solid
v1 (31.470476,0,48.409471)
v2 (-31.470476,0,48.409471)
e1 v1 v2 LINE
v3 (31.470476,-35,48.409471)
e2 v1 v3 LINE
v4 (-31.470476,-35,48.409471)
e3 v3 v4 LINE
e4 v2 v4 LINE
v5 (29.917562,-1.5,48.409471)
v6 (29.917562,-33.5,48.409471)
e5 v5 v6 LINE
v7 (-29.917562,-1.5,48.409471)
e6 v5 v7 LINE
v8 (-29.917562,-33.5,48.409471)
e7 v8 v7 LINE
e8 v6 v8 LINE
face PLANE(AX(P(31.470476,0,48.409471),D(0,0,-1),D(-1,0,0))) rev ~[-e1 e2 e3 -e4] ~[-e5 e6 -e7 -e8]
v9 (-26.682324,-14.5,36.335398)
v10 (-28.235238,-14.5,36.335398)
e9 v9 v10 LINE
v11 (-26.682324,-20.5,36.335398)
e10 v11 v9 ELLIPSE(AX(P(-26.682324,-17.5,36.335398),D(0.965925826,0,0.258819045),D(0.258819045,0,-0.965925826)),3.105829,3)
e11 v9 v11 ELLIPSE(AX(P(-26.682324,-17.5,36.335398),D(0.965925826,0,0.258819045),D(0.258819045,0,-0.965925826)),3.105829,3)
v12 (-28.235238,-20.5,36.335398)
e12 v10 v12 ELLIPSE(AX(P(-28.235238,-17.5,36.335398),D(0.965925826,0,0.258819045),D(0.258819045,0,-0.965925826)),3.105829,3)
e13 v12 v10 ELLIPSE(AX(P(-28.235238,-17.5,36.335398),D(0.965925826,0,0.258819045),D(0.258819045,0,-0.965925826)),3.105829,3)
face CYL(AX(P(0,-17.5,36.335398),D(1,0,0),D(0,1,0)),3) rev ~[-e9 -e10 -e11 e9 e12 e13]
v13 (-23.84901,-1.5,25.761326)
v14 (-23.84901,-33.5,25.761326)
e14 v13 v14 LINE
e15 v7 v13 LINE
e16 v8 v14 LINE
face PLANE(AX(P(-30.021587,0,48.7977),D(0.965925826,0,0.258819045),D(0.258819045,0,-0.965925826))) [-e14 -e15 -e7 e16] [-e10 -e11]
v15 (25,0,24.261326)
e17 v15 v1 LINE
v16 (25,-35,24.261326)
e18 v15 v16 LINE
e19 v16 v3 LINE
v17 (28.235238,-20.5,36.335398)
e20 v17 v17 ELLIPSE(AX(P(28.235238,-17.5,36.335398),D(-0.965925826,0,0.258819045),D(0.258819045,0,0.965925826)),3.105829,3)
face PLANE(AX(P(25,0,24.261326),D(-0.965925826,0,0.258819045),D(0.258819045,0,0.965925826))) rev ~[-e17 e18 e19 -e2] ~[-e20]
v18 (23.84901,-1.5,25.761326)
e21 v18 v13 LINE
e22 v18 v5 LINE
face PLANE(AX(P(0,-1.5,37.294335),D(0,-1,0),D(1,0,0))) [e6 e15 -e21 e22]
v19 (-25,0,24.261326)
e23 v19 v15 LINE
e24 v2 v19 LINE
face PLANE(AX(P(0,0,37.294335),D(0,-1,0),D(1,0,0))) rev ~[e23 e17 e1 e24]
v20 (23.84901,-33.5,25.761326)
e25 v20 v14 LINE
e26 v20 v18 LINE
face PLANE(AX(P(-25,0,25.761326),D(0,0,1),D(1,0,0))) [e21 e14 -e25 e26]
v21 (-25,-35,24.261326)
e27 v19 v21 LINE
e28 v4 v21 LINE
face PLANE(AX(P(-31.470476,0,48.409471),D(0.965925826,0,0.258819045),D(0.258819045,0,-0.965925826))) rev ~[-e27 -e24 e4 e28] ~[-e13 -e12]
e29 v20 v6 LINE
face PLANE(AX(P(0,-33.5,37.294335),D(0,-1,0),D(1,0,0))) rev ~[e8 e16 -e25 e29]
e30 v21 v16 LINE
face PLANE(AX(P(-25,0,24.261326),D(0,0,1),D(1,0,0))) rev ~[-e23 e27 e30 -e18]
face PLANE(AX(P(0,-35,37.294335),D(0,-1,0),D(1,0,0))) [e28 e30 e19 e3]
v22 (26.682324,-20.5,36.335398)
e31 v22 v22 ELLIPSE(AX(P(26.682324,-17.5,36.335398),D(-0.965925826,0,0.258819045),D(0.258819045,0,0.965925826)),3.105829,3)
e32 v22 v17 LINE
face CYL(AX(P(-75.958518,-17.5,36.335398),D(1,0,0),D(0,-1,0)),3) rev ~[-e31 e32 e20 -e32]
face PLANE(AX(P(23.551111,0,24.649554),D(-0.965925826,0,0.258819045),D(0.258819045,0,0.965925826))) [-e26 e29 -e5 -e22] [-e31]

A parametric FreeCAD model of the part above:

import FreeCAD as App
import Part
import Sketcher
Q = App.Units.Quantity


def faces_at(feature, points):
    """Names of the faces that lie closest to the given points."""
    faces = feature.Shape.Faces
    near = lambda p: min(range(len(faces)), key=lambda i: faces[i].distToShape(Part.Vertex(*p))[0])
    return sorted({f"Face{near(p) + 1}" for p in points})


def add_polygon(sketch, points):
    """Adds a closed chain of lines whose ends are joined by coincident constraints."""
    first, n = sketch.GeometryCount, len(points)
    for a, b in zip(points, points[1:] + points[:1]):
        sketch.addGeometry(Part.LineSegment(App.Vector(*a, 0), App.Vector(*b, 0)), False)
    for i in range(n):
        sketch.addConstraint(Sketcher.Constraint("Coincident", first + i, 2, first + (i + 1) % n, 1))

doc = App.newDocument("Part")
body = doc.addObject("PartDesign::Body", "Body")

sketch1 = body.newObject("Sketcher::SketchObject", "Sketch")
sketch1.AttachmentSupport = (doc.getObject("XZ_Plane"), [""])
sketch1.MapMode = "FlatFace"
add_polygon(sketch1, [(-31, 48), (-25, 24), (25, 24), (31, 48)])
sketch1.addConstraint([
    Sketcher.Constraint("Horizontal", 1),
    Sketcher.Constraint("Horizontal", 3),
    Sketcher.Constraint("Equal", 0, 2),
    Sketcher.Constraint("DistanceX", 1, 1, 1, 2, 50.0),
    Sketcher.Constraint("Angle", 0, Q("-75 deg")),
    Sketcher.Constraint("Distance", 0, 25.0),
    Sketcher.Constraint("DistanceX", 0, 2, -1, 1, 25.0),
    Sketcher.Constraint("DistanceY", -1, 1, 2, 2, 48.409471),
])
pad1 = body.newObject("PartDesign::Pad", "Pad")
pad1.Profile = sketch1
pad1.Length = 35
doc.recompute()

thickness = body.newObject("PartDesign::Thickness", "Thickness")
thickness.Base = (pad1, faces_at(pad1, [(0, -17.5, 48.409)]))
thickness.Value = 1.5
thickness.Reversed = True
thickness.Join = "Arc"

sketch2 = body.newObject("Sketcher::SketchObject", "Sketch001")
sketch2.AttachmentSupport = (doc.getObject("YZ_Plane"), [""])
sketch2.MapMode = "FlatFace"
sketch2.addGeometry(Part.Circle(App.Vector(-17.5, 36.3, 0), App.Vector(0, 0, 1), 3), False)
sketch2.addConstraint([
    Sketcher.Constraint("Diameter", 0, 6.0),
    Sketcher.Constraint("DistanceX", 0, 3, -1, 1, 17.5),
    Sketcher.Constraint("DistanceY", -1, 1, 0, 3, 36.335398),
])
pocket1 = body.newObject("PartDesign::Pocket", "Pocket")
pocket1.Profile = sketch2
pocket1.Type = "ThroughAll"

sketch3 = body.newObject("Sketcher::SketchObject", "Sketch002")
sketch3.AttachmentSupport = (doc.getObject("YZ_Plane"), [""])
sketch3.MapMode = "FlatFace"
sketch3.addGeometry(Part.Circle(App.Vector(-17.5, 36.3, 0), App.Vector(0, 0, 1), 3), False)
sketch3.addConstraint([
    Sketcher.Constraint("Diameter", 0, 6.0),
    Sketcher.Constraint("DistanceX", 0, 3, -1, 1, 17.5),
    Sketcher.Constraint("DistanceY", -1, 1, 0, 3, 36.335398),
])
doc.recompute()
hole = body.newObject("PartDesign::Hole", "Hole")
hole.Profile = sketch3
hole.ThreadType = "None"
hole.Diameter = 6
hole.DepthType = "ThroughAll"
hole.Reversed = True

doc.recompute()
